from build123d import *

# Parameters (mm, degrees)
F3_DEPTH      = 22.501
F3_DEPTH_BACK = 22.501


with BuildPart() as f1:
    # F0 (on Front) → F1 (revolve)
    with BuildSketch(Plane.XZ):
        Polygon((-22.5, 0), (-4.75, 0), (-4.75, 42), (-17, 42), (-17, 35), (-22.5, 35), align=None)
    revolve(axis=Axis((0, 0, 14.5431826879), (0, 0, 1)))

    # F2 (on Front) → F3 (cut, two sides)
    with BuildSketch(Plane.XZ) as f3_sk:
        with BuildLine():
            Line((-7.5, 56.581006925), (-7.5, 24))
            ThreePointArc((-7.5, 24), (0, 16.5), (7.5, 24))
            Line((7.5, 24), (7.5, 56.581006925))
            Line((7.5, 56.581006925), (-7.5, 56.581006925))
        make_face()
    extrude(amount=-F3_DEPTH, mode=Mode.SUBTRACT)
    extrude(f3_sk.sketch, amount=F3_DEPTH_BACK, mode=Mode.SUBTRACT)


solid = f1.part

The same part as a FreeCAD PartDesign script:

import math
import FreeCAD as App
import Part
import Sketcher
from FreeCAD import Vector

doc = App.newDocument("Part")
body = doc.addObject("PartDesign::Body", "Body")

# Sketch on XZ plane
sketch1 = body.newObject("Sketcher::SketchObject", "Sketch")
sketch1.AttachmentSupport = (doc.getObject("XZ_Plane"), [""])
sketch1.MapMode = "FlatFace"
sketch1.addGeometry([
    Part.LineSegment(Vector(-22, 0, 0), Vector(-5, 0, 0)),  # 0
    Part.LineSegment(Vector(-5, 0, 0), Vector(-5, 42, 0)),  # 1
    Part.LineSegment(Vector(-5, 42, 0), Vector(-17, 42, 0)),  # 2
    Part.LineSegment(Vector(-17, 42, 0), Vector(-17, 35, 0)),  # 3
    Part.LineSegment(Vector(-17, 35, 0), Vector(-22, 35, 0)),  # 4
    Part.LineSegment(Vector(-22, 35, 0), Vector(-22, 0, 0)),  # 5
], False)
sketch1.addConstraint([
    Sketcher.Constraint("Coincident", 0, 2, 1, 1),
    Sketcher.Constraint("Coincident", 1, 2, 2, 1),
    Sketcher.Constraint("Coincident", 2, 2, 3, 1),
    Sketcher.Constraint("Coincident", 3, 2, 4, 1),
    Sketcher.Constraint("Coincident", 4, 2, 5, 1),
    Sketcher.Constraint("Coincident", 5, 2, 0, 1),
    Sketcher.Constraint("Horizontal", 0),
    Sketcher.Constraint("Vertical", 1),
    Sketcher.Constraint("Horizontal", 2),
    Sketcher.Constraint("Vertical", 3),
    Sketcher.Constraint("Horizontal", 4),
    Sketcher.Constraint("Vertical", 5),
    Sketcher.Constraint("PointOnObject", 0, 2, -1),
    Sketcher.Constraint("DistanceY", 1, 1, 1, 2, 42.0),
    Sketcher.Constraint("DistanceY", 3, 2, 3, 1, 7.0),
    Sketcher.Constraint("DistanceX", 4, 2, 4, 1, 5.5),
    Sketcher.Constraint("DistanceX", 2, 2, -1, 1, 17.0),
    Sketcher.Constraint("DistanceX", 0, 1, 0, 2, 17.75),
])
revolution = body.newObject("PartDesign::Revolution", "Revolution")
revolution.Profile = sketch1
revolution.ReferenceAxis = (sketch1, ["V_Axis"])
revolution.Angle = 360

# Sketch on XZ plane
sketch2 = body.newObject("Sketcher::SketchObject", "Sketch001")
sketch2.AttachmentSupport = (doc.getObject("XZ_Plane"), [""])
sketch2.MapMode = "FlatFace"
sketch2.addGeometry([
    Part.LineSegment(Vector(-8, 57, 0), Vector(-8, 24, 0)),
    Part.ArcOfCircle(Part.Circle(Vector(0, 24, 0), Vector(0, 0, 1), 8), math.radians(180), math.radians(360)),
    Part.LineSegment(Vector(8, 24, 0), Vector(8, 57, 0)),
    Part.LineSegment(Vector(8, 57, 0), Vector(-8, 57, 0)),
], False)
sketch2.addConstraint([
    Sketcher.Constraint("Tangent", 0, 2, 1, 1),
    Sketcher.Constraint("Tangent", 1, 2, 2, 1),
    Sketcher.Constraint("Coincident", 2, 2, 3, 1),
    Sketcher.Constraint("Coincident", 3, 2, 0, 1),
    Sketcher.Constraint("Vertical", 0),
    Sketcher.Constraint("Vertical", 2),
    Sketcher.Constraint("Horizontal", 3),
    Sketcher.Constraint("PointOnObject", 1, 3, -2),
    Sketcher.Constraint("Radius", 1, 7.5),
    Sketcher.Constraint("DistanceY", -1, 1, 1, 3, 24.0),
    Sketcher.Constraint("DistanceY", 0, 2, 0, 1, 32.581007),
])
pocket1 = body.newObject("PartDesign::Pocket", "Pocket")
pocket1.Profile = sketch2
pocket1.Type = "ThroughAll"
pocket1.Midplane = True

doc.recompute()
